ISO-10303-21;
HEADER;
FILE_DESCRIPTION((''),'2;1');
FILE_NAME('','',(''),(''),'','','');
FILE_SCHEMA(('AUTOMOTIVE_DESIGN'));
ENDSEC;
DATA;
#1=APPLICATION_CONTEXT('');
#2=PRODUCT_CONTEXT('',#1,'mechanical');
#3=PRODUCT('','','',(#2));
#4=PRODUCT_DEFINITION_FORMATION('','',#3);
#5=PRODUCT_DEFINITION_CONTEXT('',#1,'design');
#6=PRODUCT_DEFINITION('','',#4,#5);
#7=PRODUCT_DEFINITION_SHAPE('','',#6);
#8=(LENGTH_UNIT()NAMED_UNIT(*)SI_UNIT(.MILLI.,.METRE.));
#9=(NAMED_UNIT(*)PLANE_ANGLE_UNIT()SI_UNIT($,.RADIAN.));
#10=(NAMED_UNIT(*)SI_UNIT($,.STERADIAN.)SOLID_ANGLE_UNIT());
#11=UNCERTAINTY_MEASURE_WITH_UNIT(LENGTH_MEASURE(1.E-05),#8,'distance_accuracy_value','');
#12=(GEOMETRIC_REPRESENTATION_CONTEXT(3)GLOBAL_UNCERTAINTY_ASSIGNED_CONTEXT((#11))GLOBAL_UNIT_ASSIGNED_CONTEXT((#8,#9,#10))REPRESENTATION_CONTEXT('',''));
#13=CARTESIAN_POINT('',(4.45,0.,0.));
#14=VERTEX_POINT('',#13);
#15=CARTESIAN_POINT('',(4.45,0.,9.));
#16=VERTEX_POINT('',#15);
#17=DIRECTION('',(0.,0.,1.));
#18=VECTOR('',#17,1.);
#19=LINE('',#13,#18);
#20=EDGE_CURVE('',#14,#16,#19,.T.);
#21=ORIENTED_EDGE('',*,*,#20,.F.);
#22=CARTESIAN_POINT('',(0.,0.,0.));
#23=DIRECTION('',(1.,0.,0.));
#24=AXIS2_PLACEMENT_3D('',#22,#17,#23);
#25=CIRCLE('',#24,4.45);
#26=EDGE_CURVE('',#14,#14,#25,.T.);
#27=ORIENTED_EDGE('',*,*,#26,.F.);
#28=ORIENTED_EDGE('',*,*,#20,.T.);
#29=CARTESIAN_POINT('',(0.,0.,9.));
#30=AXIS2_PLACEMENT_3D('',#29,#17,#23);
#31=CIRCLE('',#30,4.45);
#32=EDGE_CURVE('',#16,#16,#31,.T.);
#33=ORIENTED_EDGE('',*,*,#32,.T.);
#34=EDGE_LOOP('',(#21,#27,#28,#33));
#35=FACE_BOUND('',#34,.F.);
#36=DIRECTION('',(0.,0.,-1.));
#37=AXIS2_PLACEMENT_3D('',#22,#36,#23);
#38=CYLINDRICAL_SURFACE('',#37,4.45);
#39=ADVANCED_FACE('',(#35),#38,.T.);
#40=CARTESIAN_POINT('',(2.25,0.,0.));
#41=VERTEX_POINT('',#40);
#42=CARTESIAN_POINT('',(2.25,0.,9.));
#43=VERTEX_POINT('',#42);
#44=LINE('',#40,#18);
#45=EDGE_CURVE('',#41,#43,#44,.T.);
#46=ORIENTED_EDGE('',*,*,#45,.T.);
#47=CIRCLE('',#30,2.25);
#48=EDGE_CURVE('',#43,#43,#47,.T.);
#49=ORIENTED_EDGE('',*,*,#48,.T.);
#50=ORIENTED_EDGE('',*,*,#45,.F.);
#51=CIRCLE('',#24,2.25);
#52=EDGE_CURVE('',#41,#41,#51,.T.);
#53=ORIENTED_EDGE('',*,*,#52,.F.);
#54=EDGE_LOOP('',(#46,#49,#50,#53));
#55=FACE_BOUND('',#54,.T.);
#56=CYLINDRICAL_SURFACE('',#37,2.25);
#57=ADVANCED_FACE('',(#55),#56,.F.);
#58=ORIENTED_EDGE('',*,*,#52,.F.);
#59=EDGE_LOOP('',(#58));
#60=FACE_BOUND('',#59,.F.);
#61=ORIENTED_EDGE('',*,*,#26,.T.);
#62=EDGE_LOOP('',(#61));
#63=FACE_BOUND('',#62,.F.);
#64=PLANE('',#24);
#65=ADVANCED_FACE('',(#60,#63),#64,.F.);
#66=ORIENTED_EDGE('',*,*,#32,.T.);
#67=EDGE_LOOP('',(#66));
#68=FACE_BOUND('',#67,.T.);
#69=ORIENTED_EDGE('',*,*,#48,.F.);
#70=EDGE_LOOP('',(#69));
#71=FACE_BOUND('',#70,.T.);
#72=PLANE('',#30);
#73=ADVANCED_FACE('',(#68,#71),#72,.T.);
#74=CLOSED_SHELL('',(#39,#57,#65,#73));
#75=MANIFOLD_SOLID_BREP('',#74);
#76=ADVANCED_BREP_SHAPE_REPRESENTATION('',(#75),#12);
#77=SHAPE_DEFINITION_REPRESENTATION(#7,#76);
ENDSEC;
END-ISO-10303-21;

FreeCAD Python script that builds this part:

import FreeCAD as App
import Part
import Sketcher
from FreeCAD import Vector
Q = App.Units.Quantity

doc = App.newDocument("Part")
body = doc.addObject("PartDesign::Body", "Body")

# Sketch on XY plane
sketch1 = body.newObject("Sketcher::SketchObject", "Sketch")
sketch1.AttachmentSupport = (doc.getObject("XY_Plane"), [""])
sketch1.MapMode = "FlatFace"
sketch1.addGeometry(Part.Circle(Vector(0, 0, 0), Vector(0, 0, 1), 4.45), False)
sketch1.addGeometry(Part.Circle(Vector(0, 0, 0), Vector(0, 0, 1), 2.25), False)
sketch1.addConstraint(Sketcher.Constraint("Coincident", 0, 3, -1, 1))
sketch1.addConstraint(Sketcher.Constraint("Coincident", 1, 3, -1, 1))
sketch1.addConstraint(Sketcher.Constraint("Diameter", 0, Q("8.9 mm")))
sketch1.addConstraint(Sketcher.Constraint("Diameter", 1, Q("4.5 mm")))
pad1 = body.newObject("PartDesign::Pad", "Pad")
pad1.Profile = sketch1
pad1.Length = 9

doc.recompute()
